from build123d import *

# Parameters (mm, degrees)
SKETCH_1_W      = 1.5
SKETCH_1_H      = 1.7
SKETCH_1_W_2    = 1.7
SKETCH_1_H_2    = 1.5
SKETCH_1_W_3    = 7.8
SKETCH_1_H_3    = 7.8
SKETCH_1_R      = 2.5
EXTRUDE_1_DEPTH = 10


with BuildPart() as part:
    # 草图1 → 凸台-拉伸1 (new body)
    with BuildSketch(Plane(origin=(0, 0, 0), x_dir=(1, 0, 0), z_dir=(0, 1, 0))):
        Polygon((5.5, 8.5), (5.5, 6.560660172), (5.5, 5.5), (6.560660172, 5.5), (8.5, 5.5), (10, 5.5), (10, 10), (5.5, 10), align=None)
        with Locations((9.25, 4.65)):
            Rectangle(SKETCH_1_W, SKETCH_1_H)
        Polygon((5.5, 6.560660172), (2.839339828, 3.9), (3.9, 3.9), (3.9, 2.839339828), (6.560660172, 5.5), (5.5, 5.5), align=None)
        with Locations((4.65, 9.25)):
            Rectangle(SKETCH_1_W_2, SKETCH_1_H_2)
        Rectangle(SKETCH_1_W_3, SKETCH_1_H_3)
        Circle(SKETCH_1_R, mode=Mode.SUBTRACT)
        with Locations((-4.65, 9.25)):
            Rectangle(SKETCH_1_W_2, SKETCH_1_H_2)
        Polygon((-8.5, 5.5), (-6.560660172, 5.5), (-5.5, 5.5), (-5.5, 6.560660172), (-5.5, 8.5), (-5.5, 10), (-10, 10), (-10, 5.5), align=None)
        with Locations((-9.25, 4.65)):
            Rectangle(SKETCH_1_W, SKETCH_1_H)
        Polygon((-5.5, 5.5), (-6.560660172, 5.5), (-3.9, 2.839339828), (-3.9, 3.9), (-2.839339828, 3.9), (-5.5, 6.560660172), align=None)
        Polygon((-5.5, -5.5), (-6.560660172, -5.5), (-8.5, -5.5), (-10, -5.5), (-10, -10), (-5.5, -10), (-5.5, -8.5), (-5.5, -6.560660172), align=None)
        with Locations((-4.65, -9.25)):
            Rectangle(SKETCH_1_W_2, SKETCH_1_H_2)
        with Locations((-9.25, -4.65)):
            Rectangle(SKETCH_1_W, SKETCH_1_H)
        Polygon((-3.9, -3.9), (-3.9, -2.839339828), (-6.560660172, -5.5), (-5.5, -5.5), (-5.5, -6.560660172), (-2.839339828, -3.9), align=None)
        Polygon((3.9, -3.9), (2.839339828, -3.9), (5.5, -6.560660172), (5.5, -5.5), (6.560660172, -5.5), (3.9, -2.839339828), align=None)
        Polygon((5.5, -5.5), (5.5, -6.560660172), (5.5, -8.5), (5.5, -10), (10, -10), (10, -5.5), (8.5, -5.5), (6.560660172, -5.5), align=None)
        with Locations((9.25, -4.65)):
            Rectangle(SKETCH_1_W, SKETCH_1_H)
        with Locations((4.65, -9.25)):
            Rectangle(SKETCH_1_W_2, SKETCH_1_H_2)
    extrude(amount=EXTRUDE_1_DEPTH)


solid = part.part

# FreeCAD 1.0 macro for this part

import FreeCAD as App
import Part
import Sketcher

V = App.Vector
Q = App.Units.Quantity


def add_polygon(sketch, points):
    """Adds a closed chain of lines whose ends are joined by coincident constraints."""
    first, n = sketch.GeometryCount, len(points)
    for a, b in zip(points, points[1:] + points[:1]):
        sketch.addGeometry(Part.LineSegment(App.Vector(*a, 0), App.Vector(*b, 0)), False)
    for i in range(n):
        sketch.addConstraint(Sketcher.Constraint("Coincident", first + i, 2, first + (i + 1) % n, 1))

doc = App.newDocument("Part")
body = doc.addObject("PartDesign::Body", "Body")

# Sketch on XZ plane
sketch1 = body.newObject("Sketcher::SketchObject", "Sketch")
sketch1.AttachmentSupport = (doc.getObject("XZ_Plane"), [""])
sketch1.MapMode = "FlatFace"
add_polygon(sketch1, [(6.6, -5.5), (8.5, -5.5), (8.5, -3.8), (10, -3.8), (10, -10), (3.8, -10), (3.8, -8.5), (5.5, -8.5), (5.5, -6.6), (2.8, -3.9), (-2.8, -3.9), (-5.5, -6.6), (-5.5, -8.5), (-3.8, -8.5), (-3.8, -10), (-10, -10), (-10, -3.8), (-8.5, -3.8), (-8.5, -5.5), (-6.6, -5.5), (-3.9, -2.8), (-3.9, 2.8), (-6.6, 5.5), (-8.5, 5.5), (-8.5, 3.8), (-10, 3.8), (-10, 10), (-3.8, 10), (-3.8, 8.5), (-5.5, 8.5), (-5.5, 6.6), (-2.8, 3.9), (2.8, 3.9), (5.5, 6.6), (5.5, 8.5), (3.8, 8.5), (3.8, 10), (10, 10), (10, 3.8), (8.5, 3.8), (8.5, 5.5), (6.6, 5.5), (3.9, 2.8), (3.9, -2.8)])  # lines 0-43
sketch1.addGeometry(Part.Circle(V(0, 0, 0), V(0, 0, 1), 2.5), False)  # 44
sketch1.addConstraint(Sketcher.Constraint("Horizontal", 0))
sketch1.addConstraint(Sketcher.Constraint("Vertical", 1))
sketch1.addConstraint(Sketcher.Constraint("Horizontal", 2))
sketch1.addConstraint(Sketcher.Constraint("Vertical", 3))
sketch1.addConstraint(Sketcher.Constraint("Horizontal", 4))
sketch1.addConstraint(Sketcher.Constraint("Vertical", 5))
sketch1.addConstraint(Sketcher.Constraint("Horizontal", 6))
sketch1.addConstraint(Sketcher.Constraint("Vertical", 7))
sketch1.addConstraint(Sketcher.Constraint("Horizontal", 9))
sketch1.addConstraint(Sketcher.Constraint("Vertical", 11))
sketch1.addConstraint(Sketcher.Constraint("Horizontal", 12))
sketch1.addConstraint(Sketcher.Constraint("Vertical", 13))
sketch1.addConstraint(Sketcher.Constraint("Horizontal", 14))
sketch1.addConstraint(Sketcher.Constraint("Vertical", 15))
sketch1.addConstraint(Sketcher.Constraint("Horizontal", 16))
sketch1.addConstraint(Sketcher.Constraint("Vertical", 17))
sketch1.addConstraint(Sketcher.Constraint("Horizontal", 18))
sketch1.addConstraint(Sketcher.Constraint("Vertical", 20))
sketch1.addConstraint(Sketcher.Constraint("Horizontal", 22))
sketch1.addConstraint(Sketcher.Constraint("Vertical", 23))
sketch1.addConstraint(Sketcher.Constraint("Horizontal", 24))
sketch1.addConstraint(Sketcher.Constraint("Vertical", 25))
sketch1.addConstraint(Sketcher.Constraint("Horizontal", 26))
sketch1.addConstraint(Sketcher.Constraint("Vertical", 27))
sketch1.addConstraint(Sketcher.Constraint("Horizontal", 28))
sketch1.addConstraint(Sketcher.Constraint("Vertical", 29))
sketch1.addConstraint(Sketcher.Constraint("Horizontal", 31))
sketch1.addConstraint(Sketcher.Constraint("Vertical", 33))
sketch1.addConstraint(Sketcher.Constraint("Horizontal", 34))
sketch1.addConstraint(Sketcher.Constraint("Vertical", 35))
sketch1.addConstraint(Sketcher.Constraint("Horizontal", 36))
sketch1.addConstraint(Sketcher.Constraint("Vertical", 37))
sketch1.addConstraint(Sketcher.Constraint("Horizontal", 38))
sketch1.addConstraint(Sketcher.Constraint("Vertical", 39))
sketch1.addConstraint(Sketcher.Constraint("Horizontal", 40))
sketch1.addConstraint(Sketcher.Constraint("Vertical", 42))
sketch1.addConstraint(Sketcher.Constraint("Coincident", 44, 3, -1, 1))
sketch1.addConstraint(Sketcher.Constraint("Symmetric", 0, 2, 22, 2, -1, 1))
sketch1.addConstraint(Sketcher.Constraint("Symmetric", 2, 2, 24, 2, -1, 1))
sketch1.addConstraint(Sketcher.Constraint("Symmetric", 4, 2, 26, 2, -1, 1))
sketch1.addConstraint(Sketcher.Constraint("Symmetric", 6, 2, 28, 2, -1, 1))
sketch1.addConstraint(Sketcher.Constraint("Symmetric", 8, 2, 30, 2, -1, 1))
sketch1.addConstraint(Sketcher.Constraint("Symmetric", 10, 2, 32, 2, -1, 1))
sketch1.addConstraint(Sketcher.Constraint("Symmetric", 12, 2, 34, 2, -1, 1))
sketch1.addConstraint(Sketcher.Constraint("Symmetric", 14, 2, 36, 2, -1, 1))
sketch1.addConstraint(Sketcher.Constraint("Symmetric", 16, 2, 38, 2, -1, 1))
sketch1.addConstraint(Sketcher.Constraint("Symmetric", 18, 2, 40, 2, -1, 1))
sketch1.addConstraint(Sketcher.Constraint("Symmetric", 19, 2, 41, 2, -1, 1))
sketch1.addConstraint(Sketcher.Constraint("Symmetric", 7, 2, 10, 2, -2))
sketch1.addConstraint(Sketcher.Constraint("Symmetric", 5, 2, 12, 2, -2))
sketch1.addConstraint(Sketcher.Constraint("Symmetric", 3, 2, 14, 2, -2))
sketch1.addConstraint(Sketcher.Constraint("Symmetric", 1, 2, 16, 2, -2))
sketch1.addConstraint(Sketcher.Constraint("Symmetric", 21, 2, 40, 2, -2))
sketch1.addConstraint(Sketcher.Constraint("Perpendicular", 8, 10))
sketch1.addConstraint(Sketcher.Constraint("Parallel", 10, 19))
sketch1.addConstraint(Sketcher.Constraint("Perpendicular", 19, 21))
sketch1.addConstraint(Sketcher.Constraint("Parallel", 21, 30))
sketch1.addConstraint(Sketcher.Constraint("Perpendicular", 30, 32))
sketch1.addConstraint(Sketcher.Constraint("Perpendicular", 41, 43))
sketch1.addConstraint(Sketcher.Constraint("Horizontal", 20, 2, 41, 2))
sketch1.addConstraint(Sketcher.Constraint("Horizontal", 19, 2, 42, 2))
sketch1.addConstraint(Sketcher.Constraint("Equal", 34, 1))
sketch1.addConstraint(Sketcher.Constraint("Equal", 36, 3))
sketch1.addConstraint(Sketcher.Constraint("Equal", 38, 5))
sketch1.addConstraint(Sketcher.Constraint("Equal", 40, 7))
sketch1.addConstraint(Sketcher.Constraint("Equal", 31, 20))
sketch1.addConstraint(Sketcher.Constraint("Equal", 10, 19))
sketch1.addConstraint(Sketcher.Constraint("Diameter", 44, Q("5 mm")))
sketch1.addConstraint(Sketcher.Constraint("DistanceX", 2, 1, 2, 2, Q("1.5 mm")))
sketch1.addConstraint(Sketcher.Constraint("DistanceX", 4, 2, 4, 1, Q("6.2 mm")))
sketch1.addConstraint(Sketcher.Constraint("DistanceX", 6, 1, 6, 2, Q("1.7 mm")))
sketch1.addConstraint(Sketcher.Constraint("DistanceX", -1, 1, 2, 2, Q("10 mm")))
sketch1.addConstraint(Sketcher.Constraint("DistanceY", 8, 2, -1, 1, Q("3.9 mm")))
sketch1.addConstraint(Sketcher.Constraint("DistanceX", 0, 1, 0, 2, Q("1.93934 mm")))
pad1 = body.newObject("PartDesign::Pad", "Pad")
pad1.Profile = sketch1
pad1.Length = 10
pad1.Reversed = True

doc.recompute()
